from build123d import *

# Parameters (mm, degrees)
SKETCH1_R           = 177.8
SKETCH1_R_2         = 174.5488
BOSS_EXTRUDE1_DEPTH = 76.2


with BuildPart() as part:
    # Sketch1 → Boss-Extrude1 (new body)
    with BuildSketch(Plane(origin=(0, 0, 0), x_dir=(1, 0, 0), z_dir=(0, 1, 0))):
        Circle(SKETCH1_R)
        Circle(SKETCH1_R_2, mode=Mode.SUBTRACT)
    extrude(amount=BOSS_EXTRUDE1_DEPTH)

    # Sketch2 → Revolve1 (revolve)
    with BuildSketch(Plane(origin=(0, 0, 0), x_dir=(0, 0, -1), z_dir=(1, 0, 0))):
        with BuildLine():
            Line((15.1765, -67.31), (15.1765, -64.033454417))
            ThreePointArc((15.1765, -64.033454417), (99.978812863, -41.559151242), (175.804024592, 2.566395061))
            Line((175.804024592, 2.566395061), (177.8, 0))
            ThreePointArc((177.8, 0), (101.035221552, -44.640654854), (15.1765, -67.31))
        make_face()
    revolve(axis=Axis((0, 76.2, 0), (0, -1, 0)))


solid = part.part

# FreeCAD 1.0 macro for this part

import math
import FreeCAD as App
import Part
import Sketcher
from FreeCAD import Vector
Q = App.Units.Quantity

doc = App.newDocument("Part")
body = doc.addObject("PartDesign::Body", "Body")

sketch1 = doc.addObject("Sketcher::SketchObject", "Sketch")
body.addObject(sketch1)
sketch1.AttachmentSupport = (doc.XZ_Plane, [""])
sketch1.MapMode = "FlatFace"
sketch1.addGeometry([
    Part.Circle(Vector(0, 0, 0), Vector(0, 0, 1), 177.8),
    Part.Circle(Vector(0, 0, 0), Vector(0, 0, 1), 174.5488),
], False)
sketch1.addConstraint([
    Sketcher.Constraint("Coincident", 0, 3, -1, 1),
    Sketcher.Constraint("Coincident", 1, 3, -1, 1),
    Sketcher.Constraint("Diameter", 0, Q("14 in")),
    Sketcher.Constraint("Diameter", 1, Q("13.744 in")),
])
pad1 = doc.addObject("PartDesign::Pad", "Pad")
body.addObject(pad1)
pad1.Profile = sketch1
pad1.Length = Q("3 in")
pad1.Reversed = True

sketch2 = doc.addObject("Sketcher::SketchObject", "Sketch001")
body.addObject(sketch2)
sketch2.AttachmentSupport = (doc.YZ_Plane, [""])
sketch2.MapMode = "FlatFace"
sketch2.addGeometry([
    Part.LineSegment(Vector(-64.033454, -15.1765, 0), Vector(-67.31, -15.1765, 0)),
    Part.ArcOfCircle(Part.Circle(Vector(261.771907, 25.789189, 0), Vector(0, 0, 1), 331.621907), math.radians(-172.904051), math.radians(-142.126542)),
    Part.LineSegment(Vector(0, -177.8, 0), Vector(2.566395, -175.804025, 0)),
    Part.ArcOfCircle(Part.Circle(Vector(261.771907, 25.789189, 0), Vector(0, 0, 1), 328.370707), math.radians(-172.833427), math.radians(-142.126542)),
], False)
sketch2.addConstraint([
    Sketcher.Constraint("Coincident", 0, 2, 1, 1),
    Sketcher.Constraint("Coincident", 1, 2, 2, 1),
    Sketcher.Constraint("Coincident", 2, 2, 3, 2),
    Sketcher.Constraint("Coincident", 3, 1, 0, 1),
    Sketcher.Constraint("Horizontal", 0),
    Sketcher.Constraint("Coincident", 3, 3, 1, 3),
    Sketcher.Constraint("PointOnObject", 1, 2, -2),
    Sketcher.Constraint("DistanceY", 1, 2, -1, 1, Q("7 in")),
    Sketcher.Constraint("DistanceX", 0, 2, -1, 1, Q("2.65 in")),
    Sketcher.Constraint("Distance", 2, Q("0.128 in")),
    Sketcher.Constraint("DistanceY", 0, 2, -1, 1, Q("0.5975 in")),
    Sketcher.Constraint("Radius", 1, 331.621907),
    Sketcher.Constraint("DistanceX", 3, 1, 2, 2, 66.599849),
])
revolution = doc.addObject("PartDesign::Revolution", "Revolution")
body.addObject(revolution)
revolution.Profile = sketch2
revolution.ReferenceAxis = (sketch2, ["H_Axis"])
revolution.Angle = 360

doc.recompute()
